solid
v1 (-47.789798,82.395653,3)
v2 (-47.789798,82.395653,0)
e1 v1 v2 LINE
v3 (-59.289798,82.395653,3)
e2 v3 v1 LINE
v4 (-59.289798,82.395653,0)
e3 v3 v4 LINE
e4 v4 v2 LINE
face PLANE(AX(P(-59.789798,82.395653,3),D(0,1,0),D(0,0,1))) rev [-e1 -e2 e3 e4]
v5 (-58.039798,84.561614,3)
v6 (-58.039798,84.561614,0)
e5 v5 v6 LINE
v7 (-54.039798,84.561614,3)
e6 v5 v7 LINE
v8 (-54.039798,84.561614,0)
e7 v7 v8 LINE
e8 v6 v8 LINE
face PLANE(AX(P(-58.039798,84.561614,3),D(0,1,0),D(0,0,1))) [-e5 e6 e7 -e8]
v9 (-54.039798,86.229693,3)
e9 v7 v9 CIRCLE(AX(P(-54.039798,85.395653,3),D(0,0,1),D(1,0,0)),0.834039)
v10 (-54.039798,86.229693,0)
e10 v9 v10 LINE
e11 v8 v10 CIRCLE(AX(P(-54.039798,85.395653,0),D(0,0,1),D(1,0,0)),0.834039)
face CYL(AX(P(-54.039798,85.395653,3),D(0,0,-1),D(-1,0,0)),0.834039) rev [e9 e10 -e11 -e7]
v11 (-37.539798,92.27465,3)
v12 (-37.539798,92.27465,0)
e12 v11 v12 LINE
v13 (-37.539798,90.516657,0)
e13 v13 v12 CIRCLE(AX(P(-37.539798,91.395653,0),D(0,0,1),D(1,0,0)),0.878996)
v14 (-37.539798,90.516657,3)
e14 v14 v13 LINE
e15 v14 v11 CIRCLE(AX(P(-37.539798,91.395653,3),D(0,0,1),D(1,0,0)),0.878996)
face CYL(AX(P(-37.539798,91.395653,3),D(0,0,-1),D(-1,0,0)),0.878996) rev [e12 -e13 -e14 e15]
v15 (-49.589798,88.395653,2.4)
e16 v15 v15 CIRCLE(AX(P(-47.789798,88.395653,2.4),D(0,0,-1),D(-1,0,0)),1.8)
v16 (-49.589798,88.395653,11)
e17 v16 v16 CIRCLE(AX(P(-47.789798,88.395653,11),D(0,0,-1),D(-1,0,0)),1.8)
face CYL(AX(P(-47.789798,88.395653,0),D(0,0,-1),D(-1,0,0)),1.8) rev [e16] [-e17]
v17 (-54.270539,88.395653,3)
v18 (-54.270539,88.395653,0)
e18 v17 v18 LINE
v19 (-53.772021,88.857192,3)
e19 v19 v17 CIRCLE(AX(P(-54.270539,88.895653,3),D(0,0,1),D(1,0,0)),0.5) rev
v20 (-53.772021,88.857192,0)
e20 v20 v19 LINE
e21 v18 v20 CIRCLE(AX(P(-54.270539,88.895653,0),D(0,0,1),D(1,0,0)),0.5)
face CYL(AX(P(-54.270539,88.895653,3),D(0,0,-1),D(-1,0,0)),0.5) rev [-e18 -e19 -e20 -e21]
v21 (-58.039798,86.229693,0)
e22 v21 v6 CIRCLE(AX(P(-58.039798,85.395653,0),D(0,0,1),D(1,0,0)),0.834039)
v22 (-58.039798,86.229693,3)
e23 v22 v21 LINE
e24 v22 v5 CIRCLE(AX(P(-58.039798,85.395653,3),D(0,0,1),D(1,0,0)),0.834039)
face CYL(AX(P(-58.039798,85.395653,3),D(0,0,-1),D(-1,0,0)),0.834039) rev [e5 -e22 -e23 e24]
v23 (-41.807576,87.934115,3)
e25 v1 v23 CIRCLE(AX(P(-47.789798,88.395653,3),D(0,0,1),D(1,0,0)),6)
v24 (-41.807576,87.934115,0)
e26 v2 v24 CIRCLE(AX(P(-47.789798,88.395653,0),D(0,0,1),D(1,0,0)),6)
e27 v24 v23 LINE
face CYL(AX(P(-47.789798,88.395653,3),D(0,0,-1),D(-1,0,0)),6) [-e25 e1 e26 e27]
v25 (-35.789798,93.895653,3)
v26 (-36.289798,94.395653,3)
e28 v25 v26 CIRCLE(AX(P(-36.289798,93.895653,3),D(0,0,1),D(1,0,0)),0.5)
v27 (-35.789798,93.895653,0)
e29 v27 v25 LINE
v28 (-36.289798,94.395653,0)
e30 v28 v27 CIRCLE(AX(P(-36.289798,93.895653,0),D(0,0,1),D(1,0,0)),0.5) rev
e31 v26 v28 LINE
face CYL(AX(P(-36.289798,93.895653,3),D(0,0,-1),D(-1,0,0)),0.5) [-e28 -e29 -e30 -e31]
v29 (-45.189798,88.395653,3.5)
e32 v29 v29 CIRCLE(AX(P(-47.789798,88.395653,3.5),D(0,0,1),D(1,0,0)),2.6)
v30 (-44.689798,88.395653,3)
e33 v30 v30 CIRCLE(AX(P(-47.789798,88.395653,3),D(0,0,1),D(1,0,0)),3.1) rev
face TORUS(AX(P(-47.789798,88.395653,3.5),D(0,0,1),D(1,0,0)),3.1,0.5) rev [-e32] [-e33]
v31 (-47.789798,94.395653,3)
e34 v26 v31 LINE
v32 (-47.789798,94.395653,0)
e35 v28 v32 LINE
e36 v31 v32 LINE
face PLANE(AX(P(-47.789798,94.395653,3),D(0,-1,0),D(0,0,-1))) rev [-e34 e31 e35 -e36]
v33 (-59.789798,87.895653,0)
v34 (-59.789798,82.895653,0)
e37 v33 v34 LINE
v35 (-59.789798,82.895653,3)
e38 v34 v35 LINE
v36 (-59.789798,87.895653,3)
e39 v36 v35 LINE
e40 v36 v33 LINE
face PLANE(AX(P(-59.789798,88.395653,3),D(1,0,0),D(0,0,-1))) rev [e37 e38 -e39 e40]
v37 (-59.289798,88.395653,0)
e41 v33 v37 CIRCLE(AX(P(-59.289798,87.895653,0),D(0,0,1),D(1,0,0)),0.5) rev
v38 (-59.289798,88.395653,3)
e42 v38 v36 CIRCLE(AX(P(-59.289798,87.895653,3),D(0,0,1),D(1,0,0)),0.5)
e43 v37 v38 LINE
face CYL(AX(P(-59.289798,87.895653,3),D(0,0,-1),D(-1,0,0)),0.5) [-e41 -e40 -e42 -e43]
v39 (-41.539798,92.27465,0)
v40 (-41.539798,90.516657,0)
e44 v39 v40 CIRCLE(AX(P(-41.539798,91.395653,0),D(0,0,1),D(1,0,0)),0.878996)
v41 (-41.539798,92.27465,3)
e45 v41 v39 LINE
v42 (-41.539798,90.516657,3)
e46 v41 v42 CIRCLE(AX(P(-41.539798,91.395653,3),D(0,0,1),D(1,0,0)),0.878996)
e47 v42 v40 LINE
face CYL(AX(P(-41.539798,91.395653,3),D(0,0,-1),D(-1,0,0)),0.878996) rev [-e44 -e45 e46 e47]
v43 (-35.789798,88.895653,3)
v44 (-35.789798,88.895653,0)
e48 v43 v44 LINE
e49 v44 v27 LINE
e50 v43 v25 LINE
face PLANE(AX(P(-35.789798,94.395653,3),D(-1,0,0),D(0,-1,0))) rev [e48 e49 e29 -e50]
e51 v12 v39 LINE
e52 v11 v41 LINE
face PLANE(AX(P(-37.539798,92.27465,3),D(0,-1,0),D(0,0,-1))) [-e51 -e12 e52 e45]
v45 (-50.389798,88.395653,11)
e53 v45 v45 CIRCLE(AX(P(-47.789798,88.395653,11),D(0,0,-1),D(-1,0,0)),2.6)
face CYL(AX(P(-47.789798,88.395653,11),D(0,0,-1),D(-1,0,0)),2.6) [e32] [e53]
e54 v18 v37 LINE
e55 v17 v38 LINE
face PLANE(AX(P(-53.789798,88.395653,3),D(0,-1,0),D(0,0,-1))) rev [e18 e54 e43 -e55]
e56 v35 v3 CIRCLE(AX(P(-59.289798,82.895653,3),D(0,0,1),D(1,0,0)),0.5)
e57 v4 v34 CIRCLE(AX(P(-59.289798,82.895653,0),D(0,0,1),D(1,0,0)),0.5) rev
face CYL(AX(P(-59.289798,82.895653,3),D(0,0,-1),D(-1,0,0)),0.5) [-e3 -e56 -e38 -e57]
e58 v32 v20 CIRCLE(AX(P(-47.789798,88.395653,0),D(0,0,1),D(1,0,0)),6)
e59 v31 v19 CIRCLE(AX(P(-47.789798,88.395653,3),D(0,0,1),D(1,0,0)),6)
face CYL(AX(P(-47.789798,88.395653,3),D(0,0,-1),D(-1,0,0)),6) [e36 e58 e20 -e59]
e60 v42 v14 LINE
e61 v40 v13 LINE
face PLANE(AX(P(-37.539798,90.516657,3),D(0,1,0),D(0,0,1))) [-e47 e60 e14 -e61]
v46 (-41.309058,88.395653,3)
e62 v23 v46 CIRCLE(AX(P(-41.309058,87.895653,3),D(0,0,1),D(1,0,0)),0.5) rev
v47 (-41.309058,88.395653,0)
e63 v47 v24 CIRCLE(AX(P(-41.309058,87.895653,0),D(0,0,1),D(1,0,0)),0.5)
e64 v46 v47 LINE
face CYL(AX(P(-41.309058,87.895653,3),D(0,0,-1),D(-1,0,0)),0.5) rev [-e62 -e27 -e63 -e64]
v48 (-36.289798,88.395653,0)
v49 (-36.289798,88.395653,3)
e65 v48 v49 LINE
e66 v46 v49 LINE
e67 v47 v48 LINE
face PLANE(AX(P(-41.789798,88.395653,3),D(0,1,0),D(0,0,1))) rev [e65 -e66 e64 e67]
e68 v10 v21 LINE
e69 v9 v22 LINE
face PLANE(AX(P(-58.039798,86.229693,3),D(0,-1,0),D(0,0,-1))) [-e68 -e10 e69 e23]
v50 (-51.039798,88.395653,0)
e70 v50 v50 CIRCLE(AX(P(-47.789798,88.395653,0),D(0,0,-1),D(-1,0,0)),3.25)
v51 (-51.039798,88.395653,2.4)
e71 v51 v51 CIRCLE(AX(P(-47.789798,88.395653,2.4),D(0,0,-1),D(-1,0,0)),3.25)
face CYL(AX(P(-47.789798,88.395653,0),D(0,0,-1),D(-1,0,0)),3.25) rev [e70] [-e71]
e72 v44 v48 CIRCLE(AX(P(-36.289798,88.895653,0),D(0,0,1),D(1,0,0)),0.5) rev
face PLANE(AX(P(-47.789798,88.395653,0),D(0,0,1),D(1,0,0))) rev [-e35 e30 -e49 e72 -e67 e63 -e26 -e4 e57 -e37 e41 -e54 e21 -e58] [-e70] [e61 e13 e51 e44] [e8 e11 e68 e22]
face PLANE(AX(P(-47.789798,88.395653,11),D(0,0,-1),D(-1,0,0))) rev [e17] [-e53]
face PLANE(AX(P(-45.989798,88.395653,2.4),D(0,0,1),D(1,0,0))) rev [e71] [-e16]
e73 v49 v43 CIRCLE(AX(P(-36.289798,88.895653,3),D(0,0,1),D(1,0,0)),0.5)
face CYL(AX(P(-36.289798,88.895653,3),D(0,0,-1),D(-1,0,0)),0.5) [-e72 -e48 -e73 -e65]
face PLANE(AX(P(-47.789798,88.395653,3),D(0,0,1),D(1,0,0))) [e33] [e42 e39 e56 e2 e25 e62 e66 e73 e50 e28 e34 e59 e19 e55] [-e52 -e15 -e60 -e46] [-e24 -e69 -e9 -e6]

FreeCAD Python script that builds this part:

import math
import FreeCAD as App
import Part
import Sketcher
Q = App.Units.Quantity


def edges_at(feature, points):
    """Names of the edges that pass closest to the given points."""
    edges = feature.Shape.Edges
    near = lambda p: min(range(len(edges)), key=lambda i: edges[i].distToShape(Part.Vertex(*p))[0])
    return sorted({f"Edge{near(p) + 1}" for p in points})

doc = App.newDocument("Part")
body = doc.addObject("PartDesign::Body", "Body")

sketch1 = body.newObject("Sketcher::SketchObject", "Sketch")
sketch1.AttachmentSupport = (doc.getObject("XY_Plane"), [""])
sketch1.MapMode = "FlatFace"
sketch1.addGeometry(Part.LineSegment(App.Vector(-35.8, 94.4, 0), App.Vector(-47.8, 94.4, 0)), False)
sketch1.addGeometry(Part.ArcOfCircle(Part.Circle(App.Vector(-47.8, 88.4, 0), App.Vector(0, 0, 1), 6), math.radians(90), math.radians(180)), False)
sketch1.addGeometry(Part.LineSegment(App.Vector(-53.8, 88.4, 0), App.Vector(-59.8, 88.4, 0)), False)
sketch1.addGeometry(Part.LineSegment(App.Vector(-59.8, 88.4, 0), App.Vector(-59.8, 82.4, 0)), False)
sketch1.addGeometry(Part.LineSegment(App.Vector(-59.8, 82.4, 0), App.Vector(-47.8, 82.4, 0)), False)
sketch1.addGeometry(Part.ArcOfCircle(Part.Circle(App.Vector(-47.8, 88.4, 0), App.Vector(0, 0, 1), 6), math.radians(-90), math.radians(0)), False)
sketch1.addGeometry(Part.LineSegment(App.Vector(-41.8, 88.4, 0), App.Vector(-35.8, 88.4, 0)), False)
sketch1.addGeometry(Part.LineSegment(App.Vector(-35.8, 88.4, 0), App.Vector(-35.8, 94.4, 0)), False)
sketch1.addGeometry(Part.LineSegment(App.Vector(-58, 86.2, 0), App.Vector(-54, 86.2, 0)), False)
sketch1.addGeometry(Part.ArcOfCircle(Part.Circle(App.Vector(-54, 85.4, 0), App.Vector(0, 0, 1), 0.8), math.radians(-90), math.radians(90)), False)
sketch1.addGeometry(Part.LineSegment(App.Vector(-54, 84.6, 0), App.Vector(-58, 84.6, 0)), False)
sketch1.addGeometry(Part.ArcOfCircle(Part.Circle(App.Vector(-58, 85.4, 0), App.Vector(0, 0, 1), 0.8), math.radians(90), math.radians(270)), False)
sketch1.addGeometry(Part.LineSegment(App.Vector(-37.5, 90.5, 0), App.Vector(-41.5, 90.5, 0)), False)
sketch1.addGeometry(Part.ArcOfCircle(Part.Circle(App.Vector(-41.5, 91.4, 0), App.Vector(0, 0, 1), 0.9), math.radians(90), math.radians(270)), False)
sketch1.addGeometry(Part.LineSegment(App.Vector(-41.5, 92.3, 0), App.Vector(-37.5, 92.3, 0)), False)
sketch1.addGeometry(Part.ArcOfCircle(Part.Circle(App.Vector(-37.5, 91.4, 0), App.Vector(0, 0, 1), 0.9), math.radians(-90), math.radians(90)), False)
sketch1.addConstraint(Sketcher.Constraint("Tangent", 0, 2, 1, 1))
sketch1.addConstraint(Sketcher.Constraint("Coincident", 1, 2, 2, 1))
sketch1.addConstraint(Sketcher.Constraint("Coincident", 2, 2, 3, 1))
sketch1.addConstraint(Sketcher.Constraint("Coincident", 3, 2, 4, 1))
sketch1.addConstraint(Sketcher.Constraint("Tangent", 4, 2, 5, 1))
sketch1.addConstraint(Sketcher.Constraint("Coincident", 5, 2, 6, 1))
sketch1.addConstraint(Sketcher.Constraint("Coincident", 6, 2, 7, 1))
sketch1.addConstraint(Sketcher.Constraint("Coincident", 7, 2, 0, 1))
sketch1.addConstraint(Sketcher.Constraint("Tangent", 8, 2, 9, 2))
sketch1.addConstraint(Sketcher.Constraint("Tangent", 9, 1, 10, 1))
sketch1.addConstraint(Sketcher.Constraint("Tangent", 10, 2, 11, 2))
sketch1.addConstraint(Sketcher.Constraint("Tangent", 11, 1, 8, 1))
sketch1.addConstraint(Sketcher.Constraint("Tangent", 12, 2, 13, 2))
sketch1.addConstraint(Sketcher.Constraint("Tangent", 13, 1, 14, 1))
sketch1.addConstraint(Sketcher.Constraint("Tangent", 14, 2, 15, 2))
sketch1.addConstraint(Sketcher.Constraint("Tangent", 15, 1, 12, 1))
sketch1.addConstraint(Sketcher.Constraint("Horizontal", 0))
sketch1.addConstraint(Sketcher.Constraint("Horizontal", 2))
sketch1.addConstraint(Sketcher.Constraint("Vertical", 3))
sketch1.addConstraint(Sketcher.Constraint("Horizontal", 4))
sketch1.addConstraint(Sketcher.Constraint("Horizontal", 6))
sketch1.addConstraint(Sketcher.Constraint("Vertical", 7))
sketch1.addConstraint(Sketcher.Constraint("Horizontal", 8))
sketch1.addConstraint(Sketcher.Constraint("Horizontal", 10))
sketch1.addConstraint(Sketcher.Constraint("Horizontal", 12))
sketch1.addConstraint(Sketcher.Constraint("Horizontal", 14))
sketch1.addConstraint(Sketcher.Constraint("Coincident", 5, 3, 1, 3))
sketch1.addConstraint(Sketcher.Constraint("Equal", 1, 5))
sketch1.addConstraint(Sketcher.Constraint("Horizontal", 5, 3, 1, 2))
sketch1.addConstraint(Sketcher.Constraint("Horizontal", 2, 2, 5, 2))
sketch1.addConstraint(Sketcher.Constraint("Equal", 0, 4))
sketch1.addConstraint(Sketcher.Constraint("Equal", 10, 12))
sketch1.addConstraint(Sketcher.Constraint("Equal", 6, 3))
sketch1.addConstraint(Sketcher.Constraint("Radius", 1, Q("6 mm")))
sketch1.addConstraint(Sketcher.Constraint("DistanceX", 8, 1, 8, 2, Q("4 mm")))
sketch1.addConstraint(Sketcher.Constraint("DistanceY", 9, 3, 1, 3, Q("3 mm")))
sketch1.addConstraint(Sketcher.Constraint("DistanceY", 1, 3, 13, 3, Q("3 mm")))
sketch1.addConstraint(Sketcher.Constraint("DistanceX", 9, 3, 13, 3, Q("12.5 mm")))
sketch1.addConstraint(Sketcher.Constraint("Radius", 9, Q("0.834039 mm")))
sketch1.addConstraint(Sketcher.Constraint("DistanceX", 9, 3, 1, 3, Q("6.25 mm")))
sketch1.addConstraint(Sketcher.Constraint("Radius", 13, Q("0.878996 mm")))
sketch1.addConstraint(Sketcher.Constraint("DistanceX", 1, 3, -1, 1, Q("47.789798 mm")))
sketch1.addConstraint(Sketcher.Constraint("DistanceY", -1, 1, 13, 1, Q("92.27465 mm")))
pad1 = body.newObject("PartDesign::Pad", "Pad")
pad1.Profile = sketch1
pad1.Length = 3

sketch2 = body.newObject("Sketcher::SketchObject", "Sketch001")
sketch2.AttachmentSupport = (doc.getObject("XY_Plane"), [""])
sketch2.MapMode = "FlatFace"
sketch2.AttachmentOffset = App.Placement(App.Vector(0, 0, 3), App.Rotation())
sketch2.addGeometry(Part.Circle(App.Vector(-47.8, 88.4, 0), App.Vector(0, 0, 1), 2.6), False)
sketch2.addConstraint(Sketcher.Constraint("Diameter", 0, Q("5.2 mm")))
sketch2.addConstraint(Sketcher.Constraint("DistanceX", 0, 3, -1, 1, Q("47.789798 mm")))
sketch2.addConstraint(Sketcher.Constraint("DistanceY", -1, 1, 0, 3, Q("88.395653 mm")))
pad2 = body.newObject("PartDesign::Pad", "Pad001")
pad2.Profile = sketch2
pad2.Length = 8
doc.recompute()

fillet = body.newObject("PartDesign::Fillet", "Fillet")
fillet.Base = (pad2, edges_at(pad2, [
    (-35.79, 94.396, 1.5),
    (-35.79, 88.396, 1.5),
    (-41.79, 88.396, 1.5),
    (-59.79, 82.396, 1.5),
    (-59.79, 88.396, 1.5),
    (-53.79, 88.396, 1.5),
    (-45.19, 88.396, 3),
]))
fillet.Radius = 0.5

sketch3 = body.newObject("Sketcher::SketchObject", "Sketch002")
sketch3.AttachmentSupport = (doc.getObject("XY_Plane"), [""])
sketch3.MapMode = "FlatFace"
sketch3.addGeometry(Part.Circle(App.Vector(-47.8, 88.4, 0), App.Vector(0, 0, 1), 1.8), False)
sketch3.addConstraint(Sketcher.Constraint("Diameter", 0, Q("3.6 mm")))
sketch3.addConstraint(Sketcher.Constraint("DistanceX", 0, 3, -1, 1, Q("47.789798 mm")))
sketch3.addConstraint(Sketcher.Constraint("DistanceY", -1, 1, 0, 3, Q("88.395653 mm")))
doc.recompute()
hole = body.newObject("PartDesign::Hole", "Hole")
hole.Profile = sketch3
hole.ThreadType = "None"
hole.Diameter = 3.6
hole.DepthType = "ThroughAll"
hole.HoleCutType = "Counterbore"
hole.HoleCutDiameter = 6.5
hole.HoleCutDepth = 2.4
hole.Reversed = True

doc.recompute()
